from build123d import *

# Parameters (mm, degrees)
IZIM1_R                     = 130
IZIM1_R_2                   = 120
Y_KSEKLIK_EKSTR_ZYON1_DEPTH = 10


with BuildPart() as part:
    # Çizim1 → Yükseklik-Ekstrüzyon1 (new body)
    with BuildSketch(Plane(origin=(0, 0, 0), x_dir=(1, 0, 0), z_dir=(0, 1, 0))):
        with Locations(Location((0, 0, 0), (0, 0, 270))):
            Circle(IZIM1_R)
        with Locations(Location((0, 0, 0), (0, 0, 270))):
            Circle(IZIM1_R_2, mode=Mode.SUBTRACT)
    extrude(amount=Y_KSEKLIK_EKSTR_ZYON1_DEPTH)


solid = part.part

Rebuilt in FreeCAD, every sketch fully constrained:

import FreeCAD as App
import Part
import Sketcher
Q = App.Units.Quantity

doc = App.newDocument("Part")
body = doc.addObject("PartDesign::Body", "Body")

# Sketch on XZ plane
sketch1 = doc.addObject("Sketcher::SketchObject", "Sketch")
body.addObject(sketch1)
sketch1.AttachmentSupport = (doc.XZ_Plane, [""])
sketch1.MapMode = "FlatFace"
sketch1.addGeometry(Part.Circle(App.Vector(0, 0, 0), App.Vector(0, 0, 1), 130), False)
sketch1.addGeometry(Part.Circle(App.Vector(0, 0, 0), App.Vector(0, 0, 1), 120), False)
sketch1.addConstraint(Sketcher.Constraint("Coincident", 0, 3, -1, 1))
sketch1.addConstraint(Sketcher.Constraint("Coincident", 1, 3, -1, 1))
sketch1.addConstraint(Sketcher.Constraint("Diameter", 0, Q("260 mm")))
sketch1.addConstraint(Sketcher.Constraint("Diameter", 1, Q("240 mm")))
pad1 = doc.addObject("PartDesign::Pad", "Pad")
body.addObject(pad1)
pad1.Profile = sketch1
pad1.Length = 10
pad1.Reversed = True

doc.recompute()
